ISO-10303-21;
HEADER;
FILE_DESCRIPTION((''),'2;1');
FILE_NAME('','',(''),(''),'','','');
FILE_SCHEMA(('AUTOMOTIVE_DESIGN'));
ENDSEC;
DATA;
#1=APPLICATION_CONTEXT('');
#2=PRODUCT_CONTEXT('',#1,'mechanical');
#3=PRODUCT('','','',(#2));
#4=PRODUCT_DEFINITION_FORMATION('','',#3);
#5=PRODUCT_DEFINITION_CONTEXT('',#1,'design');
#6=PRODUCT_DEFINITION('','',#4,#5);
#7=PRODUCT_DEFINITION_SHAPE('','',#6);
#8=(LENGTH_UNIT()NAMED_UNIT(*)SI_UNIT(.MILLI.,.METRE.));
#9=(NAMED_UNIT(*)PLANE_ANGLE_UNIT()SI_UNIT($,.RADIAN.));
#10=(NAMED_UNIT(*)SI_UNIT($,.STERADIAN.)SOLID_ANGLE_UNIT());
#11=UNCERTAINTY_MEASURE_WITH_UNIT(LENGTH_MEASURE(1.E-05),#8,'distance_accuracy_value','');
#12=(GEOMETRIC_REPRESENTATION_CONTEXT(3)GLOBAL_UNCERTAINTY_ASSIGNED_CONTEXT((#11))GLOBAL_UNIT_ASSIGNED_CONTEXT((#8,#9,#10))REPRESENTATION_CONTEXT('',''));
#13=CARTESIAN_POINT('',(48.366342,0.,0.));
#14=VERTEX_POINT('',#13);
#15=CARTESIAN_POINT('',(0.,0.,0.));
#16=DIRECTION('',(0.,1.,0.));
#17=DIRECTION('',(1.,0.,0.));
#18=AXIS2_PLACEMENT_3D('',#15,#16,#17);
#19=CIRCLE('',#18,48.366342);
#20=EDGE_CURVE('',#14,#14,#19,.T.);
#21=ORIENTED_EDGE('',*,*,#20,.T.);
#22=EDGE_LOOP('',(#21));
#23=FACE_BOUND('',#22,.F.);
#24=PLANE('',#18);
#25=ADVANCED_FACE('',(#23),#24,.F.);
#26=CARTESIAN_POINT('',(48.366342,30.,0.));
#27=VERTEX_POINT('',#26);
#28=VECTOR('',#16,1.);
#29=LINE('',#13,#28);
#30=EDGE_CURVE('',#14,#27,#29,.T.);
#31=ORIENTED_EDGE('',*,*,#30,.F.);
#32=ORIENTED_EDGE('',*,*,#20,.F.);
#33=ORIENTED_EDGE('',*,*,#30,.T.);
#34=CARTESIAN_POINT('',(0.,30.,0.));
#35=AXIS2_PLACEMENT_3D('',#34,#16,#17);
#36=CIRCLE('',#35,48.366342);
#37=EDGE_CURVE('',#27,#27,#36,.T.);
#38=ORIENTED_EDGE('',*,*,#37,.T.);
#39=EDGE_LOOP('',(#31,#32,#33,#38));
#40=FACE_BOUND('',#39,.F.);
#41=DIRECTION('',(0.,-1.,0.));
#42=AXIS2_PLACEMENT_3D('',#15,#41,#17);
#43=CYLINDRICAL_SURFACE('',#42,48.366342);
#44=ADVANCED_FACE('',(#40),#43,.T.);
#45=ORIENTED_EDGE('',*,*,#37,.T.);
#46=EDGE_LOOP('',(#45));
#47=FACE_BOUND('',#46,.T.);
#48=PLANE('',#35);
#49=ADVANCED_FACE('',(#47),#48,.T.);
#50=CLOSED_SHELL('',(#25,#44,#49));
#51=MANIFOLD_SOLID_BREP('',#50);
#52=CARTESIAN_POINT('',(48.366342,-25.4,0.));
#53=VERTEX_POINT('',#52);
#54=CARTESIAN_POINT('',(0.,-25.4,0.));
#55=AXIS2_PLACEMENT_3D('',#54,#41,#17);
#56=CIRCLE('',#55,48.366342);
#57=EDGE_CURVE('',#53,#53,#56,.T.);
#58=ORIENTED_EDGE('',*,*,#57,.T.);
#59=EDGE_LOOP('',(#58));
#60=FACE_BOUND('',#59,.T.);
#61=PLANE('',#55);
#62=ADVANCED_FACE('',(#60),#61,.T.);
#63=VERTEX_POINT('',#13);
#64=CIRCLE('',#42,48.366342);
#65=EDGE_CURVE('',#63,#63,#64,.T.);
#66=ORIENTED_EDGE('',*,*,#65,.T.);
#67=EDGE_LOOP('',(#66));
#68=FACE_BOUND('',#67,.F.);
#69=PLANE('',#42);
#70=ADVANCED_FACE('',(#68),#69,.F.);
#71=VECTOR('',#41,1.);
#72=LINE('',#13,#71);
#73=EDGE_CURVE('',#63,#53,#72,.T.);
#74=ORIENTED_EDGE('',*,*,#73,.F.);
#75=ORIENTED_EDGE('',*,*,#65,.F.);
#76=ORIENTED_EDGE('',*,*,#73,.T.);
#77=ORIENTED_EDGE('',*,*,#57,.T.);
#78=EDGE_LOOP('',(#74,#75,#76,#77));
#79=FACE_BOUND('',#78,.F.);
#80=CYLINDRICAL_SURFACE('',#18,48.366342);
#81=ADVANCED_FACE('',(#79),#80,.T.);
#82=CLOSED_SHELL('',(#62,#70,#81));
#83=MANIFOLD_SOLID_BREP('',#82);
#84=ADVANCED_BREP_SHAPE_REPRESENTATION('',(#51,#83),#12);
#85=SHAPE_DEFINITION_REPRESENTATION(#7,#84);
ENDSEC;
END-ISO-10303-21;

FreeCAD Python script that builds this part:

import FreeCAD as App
import Part
import Sketcher
from FreeCAD import Vector
Q = App.Units.Quantity

doc = App.newDocument("Part")
body = doc.addObject("PartDesign::Body", "Body")

# Sketch on XZ plane
sketch1 = doc.addObject("Sketcher::SketchObject", "Sketch")
body.addObject(sketch1)
sketch1.AttachmentSupport = (doc.XZ_Plane, [""])
sketch1.MapMode = "FlatFace"
sketch1.addGeometry(Part.Circle(Vector(0, 0, 0), Vector(0, 0, 1), 48), False)
sketch1.addConstraint([
    Sketcher.Constraint("Coincident", 0, 3, -1, 1),
    Sketcher.Constraint("Diameter", 0, Q("96.732684 mm")),
])
pad1 = doc.addObject("PartDesign::Pad", "Pad")
body.addObject(pad1)
pad1.Profile = sketch1
pad1.Length = 25.4
body2 = doc.addObject("PartDesign::Body", "Body001")

# Sketch on XZ plane
sketch2 = doc.addObject("Sketcher::SketchObject", "Sketch001")
body2.addObject(sketch2)
sketch2.AttachmentSupport = (doc.getObject("XZ_Plane001"), [""])
sketch2.MapMode = "FlatFace"
sketch2.addGeometry(Part.Circle(Vector(0, 0, 0), Vector(0, 0, 1), 48), False)
sketch2.addConstraint([
    Sketcher.Constraint("Coincident", 0, 3, -1, 1),
    Sketcher.Constraint("Diameter", 0, Q("96.732684 mm")),
])
pad2 = doc.addObject("PartDesign::Pad", "Pad001")
body2.addObject(pad2)
pad2.Profile = sketch2
pad2.Length = 30
pad2.Reversed = True

doc.recompute()
